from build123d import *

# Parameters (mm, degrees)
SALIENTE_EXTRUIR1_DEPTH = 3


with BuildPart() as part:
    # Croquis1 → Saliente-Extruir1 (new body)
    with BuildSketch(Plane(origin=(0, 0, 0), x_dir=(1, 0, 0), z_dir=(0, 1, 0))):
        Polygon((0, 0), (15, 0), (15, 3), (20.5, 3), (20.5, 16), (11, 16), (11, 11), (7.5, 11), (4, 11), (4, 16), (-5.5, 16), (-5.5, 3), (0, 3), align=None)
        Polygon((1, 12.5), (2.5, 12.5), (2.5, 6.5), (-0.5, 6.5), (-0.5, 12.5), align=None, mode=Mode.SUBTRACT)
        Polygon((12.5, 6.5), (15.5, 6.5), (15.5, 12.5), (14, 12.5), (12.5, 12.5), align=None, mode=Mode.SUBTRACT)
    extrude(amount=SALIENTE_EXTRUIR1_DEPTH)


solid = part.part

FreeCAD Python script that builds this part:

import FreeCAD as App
import Part
import Sketcher

doc = App.newDocument("Part")
params = doc.addObject("Spreadsheet::Sheet", "Params")
for row, (alias, value) in enumerate([
    ("sketch1_width", "15 mm"),
    ("sketch1_width2", "7 mm"),
    ("sketch1_width3", "3 mm"),
    ("sketch1_height", "13 mm"),
    ("sketch1_height2", "5 mm"),
    ("pad1_length", "3 mm"),
], start=1):
    params.set(f"A{row}", alias)
    params.set(f"B{row}", "=" + value)
    params.setAlias(f"B{row}", alias)

body = doc.addObject("PartDesign::Body", "Body")

sketch1 = body.newObject("Sketcher::SketchObject", "Sketch")
sketch1.AttachmentSupport = (doc.getObject("XZ_Plane"), [""])
sketch1.MapMode = "FlatFace"
sketch1.addGeometry([
    Part.LineSegment(App.Vector(0, 0, 0), App.Vector(15, 0, 0)),
    Part.LineSegment(App.Vector(15, 0, 0), App.Vector(15, -3, 0)),
    Part.LineSegment(App.Vector(15, -3, 0), App.Vector(20.5, -3, 0)),
    Part.LineSegment(App.Vector(20.5, -3, 0), App.Vector(20.5, -16, 0)),
    Part.LineSegment(App.Vector(20.5, -16, 0), App.Vector(11, -16, 0)),
    Part.LineSegment(App.Vector(11, -16, 0), App.Vector(11, -11, 0)),
    Part.LineSegment(App.Vector(11, -11, 0), App.Vector(4, -11, 0)),
    Part.LineSegment(App.Vector(4, -11, 0), App.Vector(4, -16, 0)),
    Part.LineSegment(App.Vector(4, -16, 0), App.Vector(-5.5, -16, 0)),
    Part.LineSegment(App.Vector(-5.5, -16, 0), App.Vector(-5.5, -3, 0)),
    Part.LineSegment(App.Vector(-5.5, -3, 0), App.Vector(0, -3, 0)),
    Part.LineSegment(App.Vector(0, -3, 0), App.Vector(0, 0, 0)),
    Part.LineSegment(App.Vector(-0.5, -12.5, 0), App.Vector(2.5, -12.5, 0)),
    Part.LineSegment(App.Vector(2.5, -12.5, 0), App.Vector(2.5, -6.5, 0)),
    Part.LineSegment(App.Vector(2.5, -6.5, 0), App.Vector(-0.5, -6.5, 0)),
    Part.LineSegment(App.Vector(-0.5, -6.5, 0), App.Vector(-0.5, -12.5, 0)),
    Part.LineSegment(App.Vector(15.5, -6.5, 0), App.Vector(12.5, -6.5, 0)),
    Part.LineSegment(App.Vector(12.5, -6.5, 0), App.Vector(12.5, -12.5, 0)),
    Part.LineSegment(App.Vector(12.5, -12.5, 0), App.Vector(15.5, -12.5, 0)),
    Part.LineSegment(App.Vector(15.5, -12.5, 0), App.Vector(15.5, -6.5, 0)),
], False)
sketch1.addConstraint([
    Sketcher.Constraint("Coincident", 0, 2, 1, 1),
    Sketcher.Constraint("Coincident", 1, 2, 2, 1),
    Sketcher.Constraint("Coincident", 2, 2, 3, 1),
    Sketcher.Constraint("Coincident", 3, 2, 4, 1),
    Sketcher.Constraint("Coincident", 4, 2, 5, 1),
    Sketcher.Constraint("Coincident", 5, 2, 6, 1),
    Sketcher.Constraint("Coincident", 6, 2, 7, 1),
    Sketcher.Constraint("Coincident", 7, 2, 8, 1),
    Sketcher.Constraint("Coincident", 8, 2, 9, 1),
    Sketcher.Constraint("Coincident", 9, 2, 10, 1),
    Sketcher.Constraint("Coincident", 10, 2, 11, 1),
    Sketcher.Constraint("Coincident", 11, 2, 0, 1),
    Sketcher.Constraint("Coincident", 12, 2, 13, 1),
    Sketcher.Constraint("Coincident", 13, 2, 14, 1),
    Sketcher.Constraint("Coincident", 14, 2, 15, 1),
    Sketcher.Constraint("Coincident", 15, 2, 12, 1),
    Sketcher.Constraint("Coincident", 16, 2, 17, 1),
    Sketcher.Constraint("Coincident", 17, 2, 18, 1),
    Sketcher.Constraint("Coincident", 18, 2, 19, 1),
    Sketcher.Constraint("Coincident", 19, 2, 16, 1),
    Sketcher.Constraint("Horizontal", 0),
    Sketcher.Constraint("Vertical", 1),
    Sketcher.Constraint("Horizontal", 2),
    Sketcher.Constraint("Vertical", 3),
    Sketcher.Constraint("Horizontal", 4),
    Sketcher.Constraint("Vertical", 5),
    Sketcher.Constraint("Horizontal", 6),
    Sketcher.Constraint("Vertical", 7),
    Sketcher.Constraint("Horizontal", 8),
    Sketcher.Constraint("Vertical", 9),
    Sketcher.Constraint("Horizontal", 10),
    Sketcher.Constraint("Vertical", 11),
    Sketcher.Constraint("Horizontal", 12),
    Sketcher.Constraint("Vertical", 13),
    Sketcher.Constraint("Horizontal", 14),
    Sketcher.Constraint("Vertical", 15),
    Sketcher.Constraint("Horizontal", 16),
    Sketcher.Constraint("Vertical", 17),
    Sketcher.Constraint("Horizontal", 18),
    Sketcher.Constraint("Vertical", 19),
    Sketcher.Constraint("Coincident", 11, 2, -1, 1),
    Sketcher.Constraint("Horizontal", 4, 2, 7, 2),
    Sketcher.Constraint("Horizontal", 2, 2, 9, 2),
    Sketcher.Constraint("Horizontal", 14, 2, 16, 2),
    Sketcher.Constraint("Horizontal", 15, 2, 17, 2),
    Sketcher.Constraint("Equal", 4, 8),
    Sketcher.Constraint("Equal", 2, 10),
    Sketcher.Constraint("Equal", 14, 16),
    Sketcher.Constraint("Equal", 18, 1),
    Sketcher.Constraint("DistanceX", 0, 1, 0, 2, 15.0),
    Sketcher.Constraint("DistanceX", 6, 2, 6, 1, 7.0),
    Sketcher.Constraint("DistanceX", 12, 1, 12, 2, 3.0),
    Sketcher.Constraint("DistanceY", 3, 2, 3, 1, 13.0),
    Sketcher.Constraint("DistanceY", 5, 1, 5, 2, 5.0),
    Sketcher.Constraint("DistanceY", 13, 1, 13, 2, 6.0),
    Sketcher.Constraint("DistanceX", 2, 1, 2, 2, 5.5),
    Sketcher.Constraint("DistanceX", 8, 2, 12, 2, 8.0),
    Sketcher.Constraint("DistanceX", 16, 2, 2, 2, 8.0),
    Sketcher.Constraint("DistanceY", 12, 2, -1, 1, 12.5),
])
sketch1.setExpression("Constraints[49]", "Params.sketch1_width")
sketch1.setExpression("Constraints[50]", "Params.sketch1_width2")
sketch1.setExpression("Constraints[51]", "Params.sketch1_width3")
sketch1.setExpression("Constraints[52]", "Params.sketch1_height")
sketch1.setExpression("Constraints[53]", "Params.sketch1_height2")
pad1 = body.newObject("PartDesign::Pad", "Pad")
pad1.Profile = sketch1
pad1.setExpression("Length", "Params.pad1_length")
pad1.Reversed = True

doc.recompute()
